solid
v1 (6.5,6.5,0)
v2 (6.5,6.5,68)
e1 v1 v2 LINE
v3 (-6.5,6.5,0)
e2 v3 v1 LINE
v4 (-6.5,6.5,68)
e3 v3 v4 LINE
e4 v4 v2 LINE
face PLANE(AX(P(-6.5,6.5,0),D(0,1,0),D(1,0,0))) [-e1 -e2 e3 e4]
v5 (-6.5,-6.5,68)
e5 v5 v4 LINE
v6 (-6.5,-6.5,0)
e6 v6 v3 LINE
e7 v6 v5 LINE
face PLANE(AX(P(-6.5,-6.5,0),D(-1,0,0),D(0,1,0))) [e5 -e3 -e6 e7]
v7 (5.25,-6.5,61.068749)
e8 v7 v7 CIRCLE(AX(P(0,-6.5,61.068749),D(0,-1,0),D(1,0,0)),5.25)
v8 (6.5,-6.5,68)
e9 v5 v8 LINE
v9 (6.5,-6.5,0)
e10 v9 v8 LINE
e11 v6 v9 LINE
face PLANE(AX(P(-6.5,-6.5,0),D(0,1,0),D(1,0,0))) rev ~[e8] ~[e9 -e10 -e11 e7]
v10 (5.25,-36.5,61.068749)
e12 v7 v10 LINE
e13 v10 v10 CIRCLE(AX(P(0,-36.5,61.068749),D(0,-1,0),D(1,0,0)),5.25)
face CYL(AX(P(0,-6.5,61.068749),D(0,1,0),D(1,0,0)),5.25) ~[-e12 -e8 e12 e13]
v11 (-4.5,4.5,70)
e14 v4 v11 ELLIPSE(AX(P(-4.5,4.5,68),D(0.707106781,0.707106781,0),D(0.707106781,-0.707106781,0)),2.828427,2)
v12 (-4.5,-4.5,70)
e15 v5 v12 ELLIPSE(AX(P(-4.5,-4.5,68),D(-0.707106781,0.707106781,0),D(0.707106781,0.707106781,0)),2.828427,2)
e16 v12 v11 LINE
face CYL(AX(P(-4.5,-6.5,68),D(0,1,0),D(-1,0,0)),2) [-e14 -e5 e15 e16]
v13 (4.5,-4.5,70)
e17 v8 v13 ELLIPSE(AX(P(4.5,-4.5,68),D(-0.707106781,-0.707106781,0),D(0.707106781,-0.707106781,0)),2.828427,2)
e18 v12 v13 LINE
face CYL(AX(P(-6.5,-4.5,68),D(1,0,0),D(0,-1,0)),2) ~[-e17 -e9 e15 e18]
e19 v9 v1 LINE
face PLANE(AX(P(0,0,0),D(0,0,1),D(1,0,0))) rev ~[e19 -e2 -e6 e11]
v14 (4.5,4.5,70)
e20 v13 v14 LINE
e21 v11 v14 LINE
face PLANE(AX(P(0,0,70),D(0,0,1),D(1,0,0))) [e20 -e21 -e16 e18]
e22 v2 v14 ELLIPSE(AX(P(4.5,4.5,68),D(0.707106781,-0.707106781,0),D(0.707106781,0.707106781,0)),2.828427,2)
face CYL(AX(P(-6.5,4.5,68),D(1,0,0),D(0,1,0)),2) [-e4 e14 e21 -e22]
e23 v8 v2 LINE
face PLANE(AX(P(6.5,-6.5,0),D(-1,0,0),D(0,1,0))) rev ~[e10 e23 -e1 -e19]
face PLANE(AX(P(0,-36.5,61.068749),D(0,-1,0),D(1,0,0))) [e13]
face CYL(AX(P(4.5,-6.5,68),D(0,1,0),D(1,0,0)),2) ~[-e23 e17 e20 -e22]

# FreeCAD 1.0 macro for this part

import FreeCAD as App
import Part
import Sketcher
Q = App.Units.Quantity


def edges_at(feature, points):
    """Names of the edges that pass closest to the given points."""
    edges = feature.Shape.Edges
    near = lambda p: min(range(len(edges)), key=lambda i: edges[i].distToShape(Part.Vertex(*p))[0])
    return sorted({f"Edge{near(p) + 1}" for p in points})

doc = App.newDocument("Part")
body = doc.addObject("PartDesign::Body", "Body")

sketch1 = doc.addObject("Sketcher::SketchObject", "Sketch")
body.addObject(sketch1)
sketch1.AttachmentSupport = (doc.XY_Plane, [""])
sketch1.MapMode = "FlatFace"
sketch1.addGeometry(Part.LineSegment(App.Vector(-6.5, 6.5, 0), App.Vector(-6.5, -6.5, 0)), False)
sketch1.addGeometry(Part.LineSegment(App.Vector(-6.5, -6.5, 0), App.Vector(6.5, -6.5, 0)), False)
sketch1.addGeometry(Part.LineSegment(App.Vector(6.5, -6.5, 0), App.Vector(6.5, 6.5, 0)), False)
sketch1.addGeometry(Part.LineSegment(App.Vector(6.5, 6.5, 0), App.Vector(-6.5, 6.5, 0)), False)
sketch1.addConstraint(Sketcher.Constraint("Coincident", 0, 2, 1, 1))
sketch1.addConstraint(Sketcher.Constraint("Coincident", 1, 2, 2, 1))
sketch1.addConstraint(Sketcher.Constraint("Coincident", 2, 2, 3, 1))
sketch1.addConstraint(Sketcher.Constraint("Coincident", 3, 2, 0, 1))
sketch1.addConstraint(Sketcher.Constraint("Vertical", 0))
sketch1.addConstraint(Sketcher.Constraint("Horizontal", 1))
sketch1.addConstraint(Sketcher.Constraint("Vertical", 2))
sketch1.addConstraint(Sketcher.Constraint("Horizontal", 3))
sketch1.addConstraint(Sketcher.Constraint("Symmetric", 0, 2, 2, 2, -1, 1))
sketch1.addConstraint(Sketcher.Constraint("Equal", 3, 0))
sketch1.addConstraint(Sketcher.Constraint("DistanceX", 1, 1, 1, 2, Q("13 mm")))
pad1 = doc.addObject("PartDesign::Pad", "Pad")
body.addObject(pad1)
pad1.Profile = sketch1
pad1.Length = 70
doc.recompute()

fillet = doc.addObject("PartDesign::Fillet", "Fillet")
body.addObject(fillet)
fillet.Base = (pad1, edges_at(pad1, [
    (0, 6.5, 70),
    (-6.5, 0, 70),
    (0, -6.5, 70),
    (6.5, 0, 70),
]))
fillet.Radius = 2

sketch2 = doc.addObject("Sketcher::SketchObject", "Sketch001")
body.addObject(sketch2)
sketch2.AttachmentSupport = (doc.XZ_Plane, [""])
sketch2.MapMode = "FlatFace"
sketch2.AttachmentOffset = App.Placement(App.Vector(0, 0, 6.5), App.Rotation())
sketch2.addGeometry(Part.Circle(App.Vector(0, 61.068749, 0), App.Vector(0, 0, 1), 5.25), False)
sketch2.addConstraint(Sketcher.Constraint("PointOnObject", 0, 3, -2))
sketch2.addConstraint(Sketcher.Constraint("Diameter", 0, Q("10.5 mm")))
sketch2.addConstraint(Sketcher.Constraint("DistanceY", -1, 1, 0, 3, Q("61.068749 mm")))
pad2 = doc.addObject("PartDesign::Pad", "Pad001")
body.addObject(pad2)
pad2.Profile = sketch2
pad2.Length = 30

doc.recompute()
